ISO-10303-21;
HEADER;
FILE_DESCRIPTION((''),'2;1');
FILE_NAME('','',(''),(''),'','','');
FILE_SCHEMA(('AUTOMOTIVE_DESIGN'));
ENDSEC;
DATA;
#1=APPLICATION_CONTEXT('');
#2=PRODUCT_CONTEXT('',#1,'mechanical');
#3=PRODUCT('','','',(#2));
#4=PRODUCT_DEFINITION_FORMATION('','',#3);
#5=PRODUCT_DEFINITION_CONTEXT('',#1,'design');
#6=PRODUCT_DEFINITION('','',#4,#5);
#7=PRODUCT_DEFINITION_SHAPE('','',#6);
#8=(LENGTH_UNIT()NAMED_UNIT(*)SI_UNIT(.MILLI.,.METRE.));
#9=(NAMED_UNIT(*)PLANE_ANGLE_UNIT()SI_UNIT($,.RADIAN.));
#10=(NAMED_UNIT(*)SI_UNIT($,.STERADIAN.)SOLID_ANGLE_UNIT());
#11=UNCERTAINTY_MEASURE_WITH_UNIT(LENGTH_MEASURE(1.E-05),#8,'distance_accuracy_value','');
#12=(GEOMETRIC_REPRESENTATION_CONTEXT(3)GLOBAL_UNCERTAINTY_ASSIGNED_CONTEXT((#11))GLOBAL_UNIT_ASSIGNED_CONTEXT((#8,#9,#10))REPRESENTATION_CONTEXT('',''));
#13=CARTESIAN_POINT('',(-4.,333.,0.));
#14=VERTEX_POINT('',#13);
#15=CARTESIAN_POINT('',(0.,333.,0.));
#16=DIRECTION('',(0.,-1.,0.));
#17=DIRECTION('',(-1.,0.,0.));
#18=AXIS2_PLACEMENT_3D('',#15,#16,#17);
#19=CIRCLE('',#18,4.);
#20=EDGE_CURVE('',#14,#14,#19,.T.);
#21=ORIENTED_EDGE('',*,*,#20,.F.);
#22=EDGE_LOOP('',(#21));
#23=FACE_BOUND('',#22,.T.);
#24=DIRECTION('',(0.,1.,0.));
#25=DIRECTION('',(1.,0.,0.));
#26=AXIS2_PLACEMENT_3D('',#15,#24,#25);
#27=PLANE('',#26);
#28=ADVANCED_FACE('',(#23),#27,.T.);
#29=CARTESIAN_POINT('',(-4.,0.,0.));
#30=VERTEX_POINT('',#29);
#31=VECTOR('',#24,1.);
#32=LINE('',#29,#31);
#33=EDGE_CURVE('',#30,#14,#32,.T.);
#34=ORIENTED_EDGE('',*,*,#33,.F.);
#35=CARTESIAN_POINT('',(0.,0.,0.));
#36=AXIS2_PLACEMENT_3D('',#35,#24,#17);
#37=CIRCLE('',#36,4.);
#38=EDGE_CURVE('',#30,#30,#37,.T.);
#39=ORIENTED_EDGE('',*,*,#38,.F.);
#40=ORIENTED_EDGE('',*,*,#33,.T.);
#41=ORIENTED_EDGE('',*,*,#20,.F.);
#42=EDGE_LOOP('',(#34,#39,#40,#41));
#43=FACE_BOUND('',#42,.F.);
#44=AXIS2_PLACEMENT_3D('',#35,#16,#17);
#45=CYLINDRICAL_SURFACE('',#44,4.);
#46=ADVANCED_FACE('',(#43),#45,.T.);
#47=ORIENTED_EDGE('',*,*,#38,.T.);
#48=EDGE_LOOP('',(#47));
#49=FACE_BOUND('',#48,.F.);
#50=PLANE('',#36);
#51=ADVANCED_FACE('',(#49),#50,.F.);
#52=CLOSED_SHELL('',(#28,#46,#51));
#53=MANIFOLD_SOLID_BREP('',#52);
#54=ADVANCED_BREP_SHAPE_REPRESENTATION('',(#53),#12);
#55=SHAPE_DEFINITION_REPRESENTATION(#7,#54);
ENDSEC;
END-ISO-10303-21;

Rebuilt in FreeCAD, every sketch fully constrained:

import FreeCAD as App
import Part
import Sketcher
Q = App.Units.Quantity

doc = App.newDocument("Part")
body = doc.addObject("PartDesign::Body", "Body")

# Sketch on XZ plane
sketch1 = doc.addObject("Sketcher::SketchObject", "Sketch")
body.addObject(sketch1)
sketch1.AttachmentSupport = (doc.XZ_Plane, [""])
sketch1.MapMode = "FlatFace"
sketch1.addGeometry(Part.Circle(App.Vector(0, 0, 0), App.Vector(0, 0, 1), 4), False)
sketch1.addConstraint([
    Sketcher.Constraint("Coincident", 0, 3, -1, 1),
    Sketcher.Constraint("Diameter", 0, Q("8 mm")),
])
pad1 = doc.addObject("PartDesign::Pad", "Pad")
body.addObject(pad1)
pad1.Profile = sketch1
pad1.Length = 400
pad1.Reversed = True

# Sketch on XZ plane
sketch2 = doc.addObject("Sketcher::SketchObject", "Sketch001")
body.addObject(sketch2)
sketch2.AttachmentSupport = (doc.XZ_Plane, [""])
sketch2.MapMode = "FlatFace"
sketch2.AttachmentOffset = App.Placement(App.Vector(0, 0, -400), App.Rotation())
sketch2.addGeometry(Part.Circle(App.Vector(0, 0, 0), App.Vector(0, 0, 1), 4), False)
sketch2.addConstraint([
    Sketcher.Constraint("Coincident", 0, 3, -1, 1),
    Sketcher.Constraint("Diameter", 0, Q("8 mm")),
])
pocket1 = doc.addObject("PartDesign::Pocket", "Pocket")
body.addObject(pocket1)
pocket1.Profile = sketch2
pocket1.Length = 67
pocket1.Reversed = True

doc.recompute()
